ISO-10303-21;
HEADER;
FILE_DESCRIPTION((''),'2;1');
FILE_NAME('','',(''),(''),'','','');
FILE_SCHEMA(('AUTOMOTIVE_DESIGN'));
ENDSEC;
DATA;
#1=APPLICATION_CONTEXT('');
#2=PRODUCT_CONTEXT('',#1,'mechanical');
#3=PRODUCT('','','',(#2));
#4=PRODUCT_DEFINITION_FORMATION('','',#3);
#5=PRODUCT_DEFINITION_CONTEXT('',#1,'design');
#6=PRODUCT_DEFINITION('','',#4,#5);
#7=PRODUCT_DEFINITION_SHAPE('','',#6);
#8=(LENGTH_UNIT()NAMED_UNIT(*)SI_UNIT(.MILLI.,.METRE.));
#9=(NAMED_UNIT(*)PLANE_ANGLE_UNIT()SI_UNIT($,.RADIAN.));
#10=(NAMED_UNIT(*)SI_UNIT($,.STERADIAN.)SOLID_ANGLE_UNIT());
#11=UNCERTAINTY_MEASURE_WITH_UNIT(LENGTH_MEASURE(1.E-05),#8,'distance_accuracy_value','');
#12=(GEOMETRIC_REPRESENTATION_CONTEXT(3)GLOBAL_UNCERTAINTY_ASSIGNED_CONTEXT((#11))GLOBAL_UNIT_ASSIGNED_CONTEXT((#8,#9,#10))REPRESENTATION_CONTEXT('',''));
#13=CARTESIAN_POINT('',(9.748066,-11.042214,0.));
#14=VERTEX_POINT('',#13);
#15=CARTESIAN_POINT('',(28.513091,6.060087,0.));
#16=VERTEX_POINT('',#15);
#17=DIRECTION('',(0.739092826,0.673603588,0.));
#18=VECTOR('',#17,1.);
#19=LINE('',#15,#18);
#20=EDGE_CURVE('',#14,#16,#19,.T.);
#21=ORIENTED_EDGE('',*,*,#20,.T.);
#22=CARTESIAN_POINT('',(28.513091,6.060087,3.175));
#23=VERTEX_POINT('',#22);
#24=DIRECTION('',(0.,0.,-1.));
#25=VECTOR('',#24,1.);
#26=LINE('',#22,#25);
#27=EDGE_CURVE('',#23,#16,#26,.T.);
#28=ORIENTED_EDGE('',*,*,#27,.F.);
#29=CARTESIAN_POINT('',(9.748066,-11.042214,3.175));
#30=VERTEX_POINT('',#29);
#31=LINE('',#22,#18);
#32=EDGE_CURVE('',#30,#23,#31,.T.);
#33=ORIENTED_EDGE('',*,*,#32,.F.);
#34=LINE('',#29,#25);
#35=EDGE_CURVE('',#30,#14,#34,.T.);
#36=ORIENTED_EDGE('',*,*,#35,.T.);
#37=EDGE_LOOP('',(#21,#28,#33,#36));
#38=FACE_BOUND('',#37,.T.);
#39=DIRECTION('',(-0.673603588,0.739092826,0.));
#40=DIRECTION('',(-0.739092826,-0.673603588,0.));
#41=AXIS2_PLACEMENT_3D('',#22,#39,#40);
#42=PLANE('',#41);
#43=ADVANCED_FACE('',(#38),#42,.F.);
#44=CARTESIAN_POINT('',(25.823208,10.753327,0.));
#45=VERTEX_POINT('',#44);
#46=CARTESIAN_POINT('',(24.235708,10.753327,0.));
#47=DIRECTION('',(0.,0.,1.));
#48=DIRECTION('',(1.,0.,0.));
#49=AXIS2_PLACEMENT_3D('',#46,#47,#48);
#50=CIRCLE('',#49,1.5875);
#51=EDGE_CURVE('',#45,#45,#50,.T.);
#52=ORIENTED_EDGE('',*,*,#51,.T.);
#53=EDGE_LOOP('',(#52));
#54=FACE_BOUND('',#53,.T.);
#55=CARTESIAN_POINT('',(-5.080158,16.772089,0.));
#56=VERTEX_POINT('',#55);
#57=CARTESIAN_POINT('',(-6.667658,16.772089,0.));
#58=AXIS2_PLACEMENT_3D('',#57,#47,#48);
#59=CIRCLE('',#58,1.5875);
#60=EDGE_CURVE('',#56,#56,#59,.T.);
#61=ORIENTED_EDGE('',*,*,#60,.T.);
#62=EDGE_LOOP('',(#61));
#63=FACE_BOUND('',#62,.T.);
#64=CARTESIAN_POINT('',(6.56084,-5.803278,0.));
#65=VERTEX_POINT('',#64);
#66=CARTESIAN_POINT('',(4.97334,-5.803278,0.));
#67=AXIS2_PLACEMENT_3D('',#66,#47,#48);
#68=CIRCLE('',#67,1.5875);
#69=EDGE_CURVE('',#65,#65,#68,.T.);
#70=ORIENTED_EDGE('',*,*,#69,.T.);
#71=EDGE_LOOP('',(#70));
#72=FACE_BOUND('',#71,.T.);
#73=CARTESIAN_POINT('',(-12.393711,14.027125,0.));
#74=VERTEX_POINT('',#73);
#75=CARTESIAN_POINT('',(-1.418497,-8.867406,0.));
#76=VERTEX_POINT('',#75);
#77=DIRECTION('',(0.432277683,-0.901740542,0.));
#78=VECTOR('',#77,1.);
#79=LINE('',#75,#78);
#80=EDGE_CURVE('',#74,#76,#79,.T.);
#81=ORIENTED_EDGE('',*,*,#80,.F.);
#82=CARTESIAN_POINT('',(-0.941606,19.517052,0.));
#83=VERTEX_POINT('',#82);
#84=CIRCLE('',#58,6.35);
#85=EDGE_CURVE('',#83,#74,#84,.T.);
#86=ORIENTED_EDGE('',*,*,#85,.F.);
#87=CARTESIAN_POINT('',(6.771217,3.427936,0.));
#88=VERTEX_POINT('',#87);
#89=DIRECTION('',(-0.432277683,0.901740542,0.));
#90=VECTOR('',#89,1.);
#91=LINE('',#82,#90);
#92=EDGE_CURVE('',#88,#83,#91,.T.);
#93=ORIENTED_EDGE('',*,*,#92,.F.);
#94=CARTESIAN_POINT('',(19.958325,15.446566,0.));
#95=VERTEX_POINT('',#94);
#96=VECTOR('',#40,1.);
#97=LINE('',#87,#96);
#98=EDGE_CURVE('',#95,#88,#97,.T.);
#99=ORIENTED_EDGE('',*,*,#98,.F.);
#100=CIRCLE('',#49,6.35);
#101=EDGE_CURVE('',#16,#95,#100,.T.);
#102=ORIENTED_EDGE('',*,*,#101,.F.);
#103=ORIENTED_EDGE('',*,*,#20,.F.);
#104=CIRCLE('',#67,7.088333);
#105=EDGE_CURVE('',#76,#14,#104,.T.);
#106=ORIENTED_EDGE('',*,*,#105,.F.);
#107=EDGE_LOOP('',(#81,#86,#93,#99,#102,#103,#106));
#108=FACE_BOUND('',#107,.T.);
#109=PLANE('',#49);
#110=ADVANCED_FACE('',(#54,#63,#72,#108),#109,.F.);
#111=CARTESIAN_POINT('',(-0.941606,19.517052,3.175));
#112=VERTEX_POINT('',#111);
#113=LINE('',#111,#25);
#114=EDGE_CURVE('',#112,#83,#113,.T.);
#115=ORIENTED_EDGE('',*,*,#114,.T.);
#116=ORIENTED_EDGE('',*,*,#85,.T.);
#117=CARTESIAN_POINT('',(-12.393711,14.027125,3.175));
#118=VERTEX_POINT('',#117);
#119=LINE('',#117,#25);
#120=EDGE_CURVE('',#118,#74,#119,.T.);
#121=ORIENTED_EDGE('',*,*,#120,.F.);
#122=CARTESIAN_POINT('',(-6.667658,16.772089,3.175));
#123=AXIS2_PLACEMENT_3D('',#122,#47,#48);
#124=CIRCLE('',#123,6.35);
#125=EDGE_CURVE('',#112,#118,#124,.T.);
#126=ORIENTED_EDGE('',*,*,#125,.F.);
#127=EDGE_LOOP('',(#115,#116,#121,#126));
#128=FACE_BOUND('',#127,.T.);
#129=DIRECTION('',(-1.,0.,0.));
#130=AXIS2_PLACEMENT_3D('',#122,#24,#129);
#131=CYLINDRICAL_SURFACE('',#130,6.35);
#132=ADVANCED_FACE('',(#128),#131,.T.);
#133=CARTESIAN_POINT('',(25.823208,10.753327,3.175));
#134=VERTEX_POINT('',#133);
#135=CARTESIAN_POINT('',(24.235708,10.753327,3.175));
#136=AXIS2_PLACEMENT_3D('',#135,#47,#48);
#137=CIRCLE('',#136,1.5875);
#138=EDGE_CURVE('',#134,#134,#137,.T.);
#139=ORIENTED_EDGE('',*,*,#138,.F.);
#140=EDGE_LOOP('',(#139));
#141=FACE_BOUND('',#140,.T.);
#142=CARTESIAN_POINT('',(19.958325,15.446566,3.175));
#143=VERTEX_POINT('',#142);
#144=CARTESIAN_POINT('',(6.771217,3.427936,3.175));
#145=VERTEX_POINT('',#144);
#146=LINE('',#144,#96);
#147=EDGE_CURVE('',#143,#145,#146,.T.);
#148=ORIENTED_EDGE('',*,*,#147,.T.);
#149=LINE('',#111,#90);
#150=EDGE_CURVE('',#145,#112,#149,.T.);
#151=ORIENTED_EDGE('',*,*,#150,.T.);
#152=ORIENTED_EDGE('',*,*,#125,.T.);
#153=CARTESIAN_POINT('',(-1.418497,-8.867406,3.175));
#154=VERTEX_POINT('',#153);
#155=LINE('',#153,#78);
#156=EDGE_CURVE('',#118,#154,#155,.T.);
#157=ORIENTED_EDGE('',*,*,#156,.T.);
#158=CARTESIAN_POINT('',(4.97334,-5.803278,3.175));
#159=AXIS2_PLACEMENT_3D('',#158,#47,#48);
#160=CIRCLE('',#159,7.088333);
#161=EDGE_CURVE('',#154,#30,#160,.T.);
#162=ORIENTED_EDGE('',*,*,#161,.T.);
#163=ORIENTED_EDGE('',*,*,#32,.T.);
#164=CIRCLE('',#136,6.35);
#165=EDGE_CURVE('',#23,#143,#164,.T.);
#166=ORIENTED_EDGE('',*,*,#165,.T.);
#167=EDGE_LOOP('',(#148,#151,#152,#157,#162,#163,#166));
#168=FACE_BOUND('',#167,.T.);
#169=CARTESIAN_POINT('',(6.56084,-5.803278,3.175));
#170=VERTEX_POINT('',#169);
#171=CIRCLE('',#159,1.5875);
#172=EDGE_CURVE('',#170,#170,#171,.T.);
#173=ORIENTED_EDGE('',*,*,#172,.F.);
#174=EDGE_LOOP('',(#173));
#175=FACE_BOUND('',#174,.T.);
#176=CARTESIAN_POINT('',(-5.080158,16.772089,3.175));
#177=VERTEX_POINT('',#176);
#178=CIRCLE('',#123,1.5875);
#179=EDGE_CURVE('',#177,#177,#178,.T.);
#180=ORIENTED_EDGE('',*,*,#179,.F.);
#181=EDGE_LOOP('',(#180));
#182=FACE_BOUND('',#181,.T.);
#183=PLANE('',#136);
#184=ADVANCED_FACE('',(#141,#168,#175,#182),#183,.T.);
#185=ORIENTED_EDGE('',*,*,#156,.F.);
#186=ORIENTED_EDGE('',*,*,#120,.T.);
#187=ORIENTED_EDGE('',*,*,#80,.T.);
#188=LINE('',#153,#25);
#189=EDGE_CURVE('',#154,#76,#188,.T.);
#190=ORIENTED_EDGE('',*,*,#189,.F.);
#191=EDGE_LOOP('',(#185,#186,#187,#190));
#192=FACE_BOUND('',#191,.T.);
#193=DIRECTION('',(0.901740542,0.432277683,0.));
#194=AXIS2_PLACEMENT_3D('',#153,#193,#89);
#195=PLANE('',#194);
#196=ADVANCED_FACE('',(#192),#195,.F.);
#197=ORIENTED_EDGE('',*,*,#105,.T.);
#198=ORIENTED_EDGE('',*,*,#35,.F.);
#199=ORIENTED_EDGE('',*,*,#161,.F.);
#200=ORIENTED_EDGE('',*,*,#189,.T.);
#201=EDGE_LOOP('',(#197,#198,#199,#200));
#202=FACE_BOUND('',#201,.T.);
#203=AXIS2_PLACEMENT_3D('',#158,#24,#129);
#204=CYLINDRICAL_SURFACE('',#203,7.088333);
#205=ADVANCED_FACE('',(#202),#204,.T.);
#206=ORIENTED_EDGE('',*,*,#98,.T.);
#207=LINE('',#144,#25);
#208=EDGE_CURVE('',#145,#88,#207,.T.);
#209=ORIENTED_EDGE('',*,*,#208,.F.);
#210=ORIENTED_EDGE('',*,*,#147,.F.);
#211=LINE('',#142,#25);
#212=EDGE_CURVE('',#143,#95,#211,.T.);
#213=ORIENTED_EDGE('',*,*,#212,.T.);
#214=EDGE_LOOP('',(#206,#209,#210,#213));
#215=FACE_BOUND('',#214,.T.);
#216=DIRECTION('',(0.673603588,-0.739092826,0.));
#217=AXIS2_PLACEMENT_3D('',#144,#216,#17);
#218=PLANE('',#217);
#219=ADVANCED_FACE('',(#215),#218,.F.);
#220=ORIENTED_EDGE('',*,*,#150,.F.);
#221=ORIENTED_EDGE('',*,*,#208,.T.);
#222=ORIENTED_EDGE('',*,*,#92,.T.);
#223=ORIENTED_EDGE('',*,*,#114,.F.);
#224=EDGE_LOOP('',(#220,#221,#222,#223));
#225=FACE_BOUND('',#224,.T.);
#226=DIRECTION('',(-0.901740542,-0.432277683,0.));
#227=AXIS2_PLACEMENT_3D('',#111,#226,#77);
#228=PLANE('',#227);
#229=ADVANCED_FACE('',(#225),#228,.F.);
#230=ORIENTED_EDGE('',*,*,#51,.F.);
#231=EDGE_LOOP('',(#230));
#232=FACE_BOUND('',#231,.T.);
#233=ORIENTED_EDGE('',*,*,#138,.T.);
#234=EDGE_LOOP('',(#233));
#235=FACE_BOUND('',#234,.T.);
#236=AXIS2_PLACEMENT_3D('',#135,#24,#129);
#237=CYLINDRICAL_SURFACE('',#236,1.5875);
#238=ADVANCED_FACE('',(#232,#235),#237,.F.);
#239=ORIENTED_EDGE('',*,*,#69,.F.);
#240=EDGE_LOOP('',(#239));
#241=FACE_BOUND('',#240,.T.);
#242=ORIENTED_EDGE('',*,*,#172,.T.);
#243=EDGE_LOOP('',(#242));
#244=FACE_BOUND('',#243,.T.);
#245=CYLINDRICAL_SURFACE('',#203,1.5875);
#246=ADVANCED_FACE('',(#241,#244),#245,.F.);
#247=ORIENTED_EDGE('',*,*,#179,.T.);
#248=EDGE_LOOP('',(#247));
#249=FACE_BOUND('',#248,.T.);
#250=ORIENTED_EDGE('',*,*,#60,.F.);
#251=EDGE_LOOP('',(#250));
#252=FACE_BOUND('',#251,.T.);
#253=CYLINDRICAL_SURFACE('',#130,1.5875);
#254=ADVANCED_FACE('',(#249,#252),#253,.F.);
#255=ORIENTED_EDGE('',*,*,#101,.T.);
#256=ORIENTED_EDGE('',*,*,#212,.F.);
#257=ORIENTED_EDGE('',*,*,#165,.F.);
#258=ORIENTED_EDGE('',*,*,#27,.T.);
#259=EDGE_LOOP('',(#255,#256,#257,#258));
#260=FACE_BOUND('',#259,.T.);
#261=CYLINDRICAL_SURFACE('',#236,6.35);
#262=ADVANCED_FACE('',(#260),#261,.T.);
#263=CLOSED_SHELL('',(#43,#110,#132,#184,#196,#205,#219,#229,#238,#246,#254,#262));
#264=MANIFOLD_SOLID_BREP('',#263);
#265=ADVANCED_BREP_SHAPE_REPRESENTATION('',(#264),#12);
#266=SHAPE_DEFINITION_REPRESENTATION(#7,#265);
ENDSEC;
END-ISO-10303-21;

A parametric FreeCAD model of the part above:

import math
import FreeCAD as App
import Part
import Sketcher
Q = App.Units.Quantity

doc = App.newDocument("Part")
body = doc.addObject("PartDesign::Body", "Body")

# Sketch on XY plane
sketch1 = body.newObject("Sketcher::SketchObject", "Sketch")
sketch1.AttachmentSupport = (doc.getObject("XY_Plane"), [""])
sketch1.MapMode = "FlatFace"
sketch1.addGeometry([
    Part.LineSegment(App.Vector(9.7, -11, 0), App.Vector(28.5, 6.1, 0)),  # 0
    Part.ArcOfCircle(Part.Circle(App.Vector(24.2, 10.8, 0), App.Vector(0, 0, 1), 6.3), math.radians(-48), math.radians(132)),  # 1
    Part.LineSegment(App.Vector(20, 15.4, 0), App.Vector(6.8, 3.4, 0)),  # 2
    Part.LineSegment(App.Vector(6.8, 3.4, 0), App.Vector(-0.9, 19.5, 0)),  # 3
    Part.ArcOfCircle(Part.Circle(App.Vector(-6.7, 16.8, 0), App.Vector(0, 0, 1), 6.3), math.radians(26), math.radians(206)),  # 4
    Part.LineSegment(App.Vector(-12.4, 14, 0), App.Vector(-1.4, -8.9, 0)),  # 5
    Part.ArcOfCircle(Part.Circle(App.Vector(5, -5.8, 0), App.Vector(0, 0, 1), 7.1), math.radians(-154), math.radians(-48)),  # 6
    Part.Circle(App.Vector(5, -5.8, 0), App.Vector(0, 0, 1), 1.6),  # 7
    Part.Circle(App.Vector(24.2, 10.8, 0), App.Vector(0, 0, 1), 1.6),  # 8
    Part.Circle(App.Vector(-6.7, 16.8, 0), App.Vector(0, 0, 1), 1.6),  # 9
], False)
sketch1.addConstraint([
    Sketcher.Constraint("Tangent", 0, 2, 1, 1),
    Sketcher.Constraint("Tangent", 1, 2, 2, 1),
    Sketcher.Constraint("Coincident", 2, 2, 3, 1),
    Sketcher.Constraint("Tangent", 3, 2, 4, 1),
    Sketcher.Constraint("Tangent", 4, 2, 5, 1),
    Sketcher.Constraint("Tangent", 5, 2, 6, 1),
    Sketcher.Constraint("Tangent", 6, 2, 0, 1),
    Sketcher.Constraint("Coincident", 7, 3, 6, 3),
    Sketcher.Constraint("Coincident", 8, 3, 1, 3),
    Sketcher.Constraint("Coincident", 9, 3, 4, 3),
    Sketcher.Constraint("Equal", 1, 4),
    Sketcher.Constraint("Equal", 7, 8),
    Sketcher.Constraint("Equal", 8, 9),
    Sketcher.Constraint("Parallel", 0, 2),
    Sketcher.Constraint("Parallel", 3, 5),
    Sketcher.Constraint("Equal", 2, 3),
    Sketcher.Constraint("Radius", 1, Q("0.25 in")),
    Sketcher.Constraint("Diameter", 7, Q("0.125 in")),
    Sketcher.Constraint("Radius", 6, 7.088333),
    Sketcher.Constraint("DistanceX", 4, 3, 6, 3, 11.640998),
    Sketcher.Constraint("DistanceY", 0, 2, 4, 3, 10.712001),
    Sketcher.Constraint("DistanceY", 6, 2, 0, 2, 17.102301),
    Sketcher.Constraint("DistanceX", -1, 1, 1, 3, 24.235708),
    Sketcher.Constraint("DistanceY", -1, 1, 4, 3, 16.772089),
])
pad1 = body.newObject("PartDesign::Pad", "Pad")
pad1.Profile = sketch1
pad1.Length = Q("0.125 in")

doc.recompute()
